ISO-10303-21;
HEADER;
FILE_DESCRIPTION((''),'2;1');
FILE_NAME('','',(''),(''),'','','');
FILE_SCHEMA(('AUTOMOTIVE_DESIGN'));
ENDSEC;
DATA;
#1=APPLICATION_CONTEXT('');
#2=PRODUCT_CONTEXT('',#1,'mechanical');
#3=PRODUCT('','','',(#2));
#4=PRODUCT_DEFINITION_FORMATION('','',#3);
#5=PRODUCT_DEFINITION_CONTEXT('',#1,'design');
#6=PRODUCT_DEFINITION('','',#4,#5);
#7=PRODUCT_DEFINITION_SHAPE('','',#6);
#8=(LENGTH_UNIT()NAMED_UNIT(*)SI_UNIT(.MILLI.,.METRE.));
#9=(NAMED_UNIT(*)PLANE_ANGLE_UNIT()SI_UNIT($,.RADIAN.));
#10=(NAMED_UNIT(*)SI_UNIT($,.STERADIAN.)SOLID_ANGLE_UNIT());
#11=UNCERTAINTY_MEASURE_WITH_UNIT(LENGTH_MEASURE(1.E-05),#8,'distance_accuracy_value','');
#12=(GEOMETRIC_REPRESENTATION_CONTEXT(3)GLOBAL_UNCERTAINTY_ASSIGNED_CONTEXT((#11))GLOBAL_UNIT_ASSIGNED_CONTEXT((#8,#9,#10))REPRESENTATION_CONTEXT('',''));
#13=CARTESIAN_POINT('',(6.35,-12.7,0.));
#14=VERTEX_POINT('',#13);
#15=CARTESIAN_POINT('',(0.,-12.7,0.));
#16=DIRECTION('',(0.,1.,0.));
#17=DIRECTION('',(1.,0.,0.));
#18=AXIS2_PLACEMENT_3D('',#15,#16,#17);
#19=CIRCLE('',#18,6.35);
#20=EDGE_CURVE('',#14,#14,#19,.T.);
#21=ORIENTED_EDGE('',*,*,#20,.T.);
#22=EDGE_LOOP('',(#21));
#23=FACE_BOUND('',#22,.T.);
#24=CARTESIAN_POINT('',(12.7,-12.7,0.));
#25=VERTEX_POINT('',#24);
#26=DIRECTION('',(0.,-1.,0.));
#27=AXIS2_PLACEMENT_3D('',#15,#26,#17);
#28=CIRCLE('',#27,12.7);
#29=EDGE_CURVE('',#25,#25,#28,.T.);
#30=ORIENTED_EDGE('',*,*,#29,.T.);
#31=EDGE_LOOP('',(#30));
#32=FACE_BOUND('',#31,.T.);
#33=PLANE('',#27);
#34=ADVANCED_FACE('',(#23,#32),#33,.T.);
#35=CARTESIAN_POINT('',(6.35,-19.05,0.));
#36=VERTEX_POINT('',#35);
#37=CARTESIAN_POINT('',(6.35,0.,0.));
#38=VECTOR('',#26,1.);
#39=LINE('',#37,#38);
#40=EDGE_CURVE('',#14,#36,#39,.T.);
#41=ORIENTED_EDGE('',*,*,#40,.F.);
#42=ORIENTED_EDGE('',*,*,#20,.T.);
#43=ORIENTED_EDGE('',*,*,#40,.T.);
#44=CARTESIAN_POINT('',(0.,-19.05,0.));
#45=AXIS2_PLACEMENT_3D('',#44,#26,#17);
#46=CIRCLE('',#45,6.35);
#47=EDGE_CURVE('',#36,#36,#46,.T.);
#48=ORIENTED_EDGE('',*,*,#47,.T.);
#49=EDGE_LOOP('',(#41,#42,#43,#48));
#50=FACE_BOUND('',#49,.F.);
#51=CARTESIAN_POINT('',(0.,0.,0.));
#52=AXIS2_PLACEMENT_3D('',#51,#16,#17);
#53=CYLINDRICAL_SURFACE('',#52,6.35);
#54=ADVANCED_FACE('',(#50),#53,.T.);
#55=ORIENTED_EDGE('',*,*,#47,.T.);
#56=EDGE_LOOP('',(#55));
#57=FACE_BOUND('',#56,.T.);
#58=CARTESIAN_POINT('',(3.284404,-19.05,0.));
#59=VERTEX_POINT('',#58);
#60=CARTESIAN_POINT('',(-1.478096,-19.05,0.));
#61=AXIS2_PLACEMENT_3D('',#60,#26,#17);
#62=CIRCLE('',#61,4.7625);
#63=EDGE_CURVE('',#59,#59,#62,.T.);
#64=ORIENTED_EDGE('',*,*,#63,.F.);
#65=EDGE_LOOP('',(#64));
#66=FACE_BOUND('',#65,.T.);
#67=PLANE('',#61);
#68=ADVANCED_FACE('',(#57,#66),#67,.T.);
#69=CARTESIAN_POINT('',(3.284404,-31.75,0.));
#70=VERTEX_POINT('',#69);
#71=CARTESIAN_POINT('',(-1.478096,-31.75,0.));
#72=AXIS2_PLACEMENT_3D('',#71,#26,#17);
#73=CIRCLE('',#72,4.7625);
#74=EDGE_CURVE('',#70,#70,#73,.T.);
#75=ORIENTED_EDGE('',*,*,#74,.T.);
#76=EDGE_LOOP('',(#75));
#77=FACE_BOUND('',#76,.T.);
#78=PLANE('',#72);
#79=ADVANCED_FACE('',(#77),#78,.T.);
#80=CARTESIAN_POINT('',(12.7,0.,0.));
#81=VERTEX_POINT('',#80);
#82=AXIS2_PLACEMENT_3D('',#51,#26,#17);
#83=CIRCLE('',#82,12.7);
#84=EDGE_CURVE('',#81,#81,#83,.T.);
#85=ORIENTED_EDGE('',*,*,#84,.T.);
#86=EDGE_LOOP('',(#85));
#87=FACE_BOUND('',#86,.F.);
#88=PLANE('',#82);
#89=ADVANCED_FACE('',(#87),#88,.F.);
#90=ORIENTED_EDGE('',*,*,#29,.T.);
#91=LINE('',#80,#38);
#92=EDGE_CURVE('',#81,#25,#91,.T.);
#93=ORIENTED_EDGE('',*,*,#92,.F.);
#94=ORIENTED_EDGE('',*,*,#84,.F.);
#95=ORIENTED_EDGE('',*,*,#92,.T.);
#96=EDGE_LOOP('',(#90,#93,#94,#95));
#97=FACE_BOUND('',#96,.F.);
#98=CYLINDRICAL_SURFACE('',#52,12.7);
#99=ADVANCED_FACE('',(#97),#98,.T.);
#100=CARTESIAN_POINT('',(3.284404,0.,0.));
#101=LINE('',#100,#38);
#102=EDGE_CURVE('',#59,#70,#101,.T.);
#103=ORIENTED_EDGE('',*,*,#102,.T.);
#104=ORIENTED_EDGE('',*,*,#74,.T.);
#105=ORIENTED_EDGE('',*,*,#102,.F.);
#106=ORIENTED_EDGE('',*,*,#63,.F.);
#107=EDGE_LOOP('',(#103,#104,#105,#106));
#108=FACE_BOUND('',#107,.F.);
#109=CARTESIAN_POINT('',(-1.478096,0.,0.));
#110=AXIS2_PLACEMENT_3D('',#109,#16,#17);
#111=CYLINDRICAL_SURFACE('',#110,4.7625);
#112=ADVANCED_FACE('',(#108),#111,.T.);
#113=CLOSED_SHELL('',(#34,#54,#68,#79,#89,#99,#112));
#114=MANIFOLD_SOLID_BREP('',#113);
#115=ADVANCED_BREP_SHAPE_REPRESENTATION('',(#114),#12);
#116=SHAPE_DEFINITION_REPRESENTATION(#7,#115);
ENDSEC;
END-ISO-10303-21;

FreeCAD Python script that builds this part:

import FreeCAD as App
import Part
import Sketcher
Q = App.Units.Quantity

doc = App.newDocument("Part")
params = doc.addObject("Spreadsheet::Sheet", "Params")
for row, (alias, value) in enumerate([
    ("sketch1_diameter", "1 in"),
    ("sketch1_diameter2", "0.375 in"),
    ("pad1_length", "0.5 in"),
    ("sketch2_diameter", "0.5 in"),
    ("sketch2_diameter2", "0.375 in"),
    ("pad2_length", "0.75 in"),
    ("sketch3_diameter", "0.375 in"),
    ("pad3_length", "1.25 in"),
], start=1):
    params.set(f"A{row}", alias)
    params.set(f"B{row}", "=" + value)
    params.setAlias(f"B{row}", alias)

body = doc.addObject("PartDesign::Body", "Body")

sketch1 = body.newObject("Sketcher::SketchObject", "Sketch")
sketch1.AttachmentSupport = (doc.getObject("XZ_Plane"), [""])
sketch1.MapMode = "FlatFace"
sketch1.addGeometry(Part.Circle(App.Vector(0, 0, 0), App.Vector(0, 0, 1), 12.7), False)
sketch1.addGeometry(Part.Circle(App.Vector(-1.5, 0, 0), App.Vector(0, 0, 1), 4.8), False)
sketch1.addConstraint(Sketcher.Constraint("Coincident", 0, 3, -1, 1))
sketch1.addConstraint(Sketcher.Constraint("PointOnObject", 1, 3, -1))
sketch1.addConstraint(Sketcher.Constraint("Diameter", 0, Q("1 in")))
sketch1.addConstraint(Sketcher.Constraint("Diameter", 1, Q("0.375 in")))
sketch1.addConstraint(Sketcher.Constraint("DistanceX", 1, 3, -1, 1, 1.478096))
sketch1.setExpression("Constraints[2]", "Params.sketch1_diameter")
sketch1.setExpression("Constraints[3]", "Params.sketch1_diameter2")
pad1 = body.newObject("PartDesign::Pad", "Pad")
pad1.Profile = sketch1
pad1.setExpression("Length", "Params.pad1_length")

sketch2 = body.newObject("Sketcher::SketchObject", "Sketch001")
sketch2.AttachmentSupport = (doc.getObject("XZ_Plane"), [""])
sketch2.MapMode = "FlatFace"
sketch2.addGeometry(Part.Circle(App.Vector(0, 0, 0), App.Vector(0, 0, 1), 6.3), False)
sketch2.addGeometry(Part.Circle(App.Vector(-1.5, 0, 0), App.Vector(0, 0, 1), 4.8), False)
sketch2.addConstraint(Sketcher.Constraint("Coincident", 0, 3, -1, 1))
sketch2.addConstraint(Sketcher.Constraint("PointOnObject", 1, 3, -1))
sketch2.addConstraint(Sketcher.Constraint("Diameter", 0, Q("0.5 in")))
sketch2.addConstraint(Sketcher.Constraint("Diameter", 1, Q("0.375 in")))
sketch2.addConstraint(Sketcher.Constraint("DistanceX", 1, 3, -1, 1, 1.478096))
sketch2.setExpression("Constraints[2]", "Params.sketch2_diameter")
sketch2.setExpression("Constraints[3]", "Params.sketch2_diameter2")
pad2 = body.newObject("PartDesign::Pad", "Pad001")
pad2.Profile = sketch2
pad2.setExpression("Length", "Params.pad2_length")

sketch3 = body.newObject("Sketcher::SketchObject", "Sketch002")
sketch3.AttachmentSupport = (doc.getObject("XZ_Plane"), [""])
sketch3.MapMode = "FlatFace"
sketch3.addGeometry(Part.Circle(App.Vector(-1.5, 0, 0), App.Vector(0, 0, 1), 4.8), False)
sketch3.addConstraint(Sketcher.Constraint("PointOnObject", 0, 3, -1))
sketch3.addConstraint(Sketcher.Constraint("Diameter", 0, Q("0.375 in")))
sketch3.addConstraint(Sketcher.Constraint("DistanceX", 0, 3, -1, 1, 1.478096))
sketch3.setExpression("Constraints[1]", "Params.sketch3_diameter")
pad3 = body.newObject("PartDesign::Pad", "Pad002")
pad3.Profile = sketch3
pad3.setExpression("Length", "Params.pad3_length")

doc.recompute()
